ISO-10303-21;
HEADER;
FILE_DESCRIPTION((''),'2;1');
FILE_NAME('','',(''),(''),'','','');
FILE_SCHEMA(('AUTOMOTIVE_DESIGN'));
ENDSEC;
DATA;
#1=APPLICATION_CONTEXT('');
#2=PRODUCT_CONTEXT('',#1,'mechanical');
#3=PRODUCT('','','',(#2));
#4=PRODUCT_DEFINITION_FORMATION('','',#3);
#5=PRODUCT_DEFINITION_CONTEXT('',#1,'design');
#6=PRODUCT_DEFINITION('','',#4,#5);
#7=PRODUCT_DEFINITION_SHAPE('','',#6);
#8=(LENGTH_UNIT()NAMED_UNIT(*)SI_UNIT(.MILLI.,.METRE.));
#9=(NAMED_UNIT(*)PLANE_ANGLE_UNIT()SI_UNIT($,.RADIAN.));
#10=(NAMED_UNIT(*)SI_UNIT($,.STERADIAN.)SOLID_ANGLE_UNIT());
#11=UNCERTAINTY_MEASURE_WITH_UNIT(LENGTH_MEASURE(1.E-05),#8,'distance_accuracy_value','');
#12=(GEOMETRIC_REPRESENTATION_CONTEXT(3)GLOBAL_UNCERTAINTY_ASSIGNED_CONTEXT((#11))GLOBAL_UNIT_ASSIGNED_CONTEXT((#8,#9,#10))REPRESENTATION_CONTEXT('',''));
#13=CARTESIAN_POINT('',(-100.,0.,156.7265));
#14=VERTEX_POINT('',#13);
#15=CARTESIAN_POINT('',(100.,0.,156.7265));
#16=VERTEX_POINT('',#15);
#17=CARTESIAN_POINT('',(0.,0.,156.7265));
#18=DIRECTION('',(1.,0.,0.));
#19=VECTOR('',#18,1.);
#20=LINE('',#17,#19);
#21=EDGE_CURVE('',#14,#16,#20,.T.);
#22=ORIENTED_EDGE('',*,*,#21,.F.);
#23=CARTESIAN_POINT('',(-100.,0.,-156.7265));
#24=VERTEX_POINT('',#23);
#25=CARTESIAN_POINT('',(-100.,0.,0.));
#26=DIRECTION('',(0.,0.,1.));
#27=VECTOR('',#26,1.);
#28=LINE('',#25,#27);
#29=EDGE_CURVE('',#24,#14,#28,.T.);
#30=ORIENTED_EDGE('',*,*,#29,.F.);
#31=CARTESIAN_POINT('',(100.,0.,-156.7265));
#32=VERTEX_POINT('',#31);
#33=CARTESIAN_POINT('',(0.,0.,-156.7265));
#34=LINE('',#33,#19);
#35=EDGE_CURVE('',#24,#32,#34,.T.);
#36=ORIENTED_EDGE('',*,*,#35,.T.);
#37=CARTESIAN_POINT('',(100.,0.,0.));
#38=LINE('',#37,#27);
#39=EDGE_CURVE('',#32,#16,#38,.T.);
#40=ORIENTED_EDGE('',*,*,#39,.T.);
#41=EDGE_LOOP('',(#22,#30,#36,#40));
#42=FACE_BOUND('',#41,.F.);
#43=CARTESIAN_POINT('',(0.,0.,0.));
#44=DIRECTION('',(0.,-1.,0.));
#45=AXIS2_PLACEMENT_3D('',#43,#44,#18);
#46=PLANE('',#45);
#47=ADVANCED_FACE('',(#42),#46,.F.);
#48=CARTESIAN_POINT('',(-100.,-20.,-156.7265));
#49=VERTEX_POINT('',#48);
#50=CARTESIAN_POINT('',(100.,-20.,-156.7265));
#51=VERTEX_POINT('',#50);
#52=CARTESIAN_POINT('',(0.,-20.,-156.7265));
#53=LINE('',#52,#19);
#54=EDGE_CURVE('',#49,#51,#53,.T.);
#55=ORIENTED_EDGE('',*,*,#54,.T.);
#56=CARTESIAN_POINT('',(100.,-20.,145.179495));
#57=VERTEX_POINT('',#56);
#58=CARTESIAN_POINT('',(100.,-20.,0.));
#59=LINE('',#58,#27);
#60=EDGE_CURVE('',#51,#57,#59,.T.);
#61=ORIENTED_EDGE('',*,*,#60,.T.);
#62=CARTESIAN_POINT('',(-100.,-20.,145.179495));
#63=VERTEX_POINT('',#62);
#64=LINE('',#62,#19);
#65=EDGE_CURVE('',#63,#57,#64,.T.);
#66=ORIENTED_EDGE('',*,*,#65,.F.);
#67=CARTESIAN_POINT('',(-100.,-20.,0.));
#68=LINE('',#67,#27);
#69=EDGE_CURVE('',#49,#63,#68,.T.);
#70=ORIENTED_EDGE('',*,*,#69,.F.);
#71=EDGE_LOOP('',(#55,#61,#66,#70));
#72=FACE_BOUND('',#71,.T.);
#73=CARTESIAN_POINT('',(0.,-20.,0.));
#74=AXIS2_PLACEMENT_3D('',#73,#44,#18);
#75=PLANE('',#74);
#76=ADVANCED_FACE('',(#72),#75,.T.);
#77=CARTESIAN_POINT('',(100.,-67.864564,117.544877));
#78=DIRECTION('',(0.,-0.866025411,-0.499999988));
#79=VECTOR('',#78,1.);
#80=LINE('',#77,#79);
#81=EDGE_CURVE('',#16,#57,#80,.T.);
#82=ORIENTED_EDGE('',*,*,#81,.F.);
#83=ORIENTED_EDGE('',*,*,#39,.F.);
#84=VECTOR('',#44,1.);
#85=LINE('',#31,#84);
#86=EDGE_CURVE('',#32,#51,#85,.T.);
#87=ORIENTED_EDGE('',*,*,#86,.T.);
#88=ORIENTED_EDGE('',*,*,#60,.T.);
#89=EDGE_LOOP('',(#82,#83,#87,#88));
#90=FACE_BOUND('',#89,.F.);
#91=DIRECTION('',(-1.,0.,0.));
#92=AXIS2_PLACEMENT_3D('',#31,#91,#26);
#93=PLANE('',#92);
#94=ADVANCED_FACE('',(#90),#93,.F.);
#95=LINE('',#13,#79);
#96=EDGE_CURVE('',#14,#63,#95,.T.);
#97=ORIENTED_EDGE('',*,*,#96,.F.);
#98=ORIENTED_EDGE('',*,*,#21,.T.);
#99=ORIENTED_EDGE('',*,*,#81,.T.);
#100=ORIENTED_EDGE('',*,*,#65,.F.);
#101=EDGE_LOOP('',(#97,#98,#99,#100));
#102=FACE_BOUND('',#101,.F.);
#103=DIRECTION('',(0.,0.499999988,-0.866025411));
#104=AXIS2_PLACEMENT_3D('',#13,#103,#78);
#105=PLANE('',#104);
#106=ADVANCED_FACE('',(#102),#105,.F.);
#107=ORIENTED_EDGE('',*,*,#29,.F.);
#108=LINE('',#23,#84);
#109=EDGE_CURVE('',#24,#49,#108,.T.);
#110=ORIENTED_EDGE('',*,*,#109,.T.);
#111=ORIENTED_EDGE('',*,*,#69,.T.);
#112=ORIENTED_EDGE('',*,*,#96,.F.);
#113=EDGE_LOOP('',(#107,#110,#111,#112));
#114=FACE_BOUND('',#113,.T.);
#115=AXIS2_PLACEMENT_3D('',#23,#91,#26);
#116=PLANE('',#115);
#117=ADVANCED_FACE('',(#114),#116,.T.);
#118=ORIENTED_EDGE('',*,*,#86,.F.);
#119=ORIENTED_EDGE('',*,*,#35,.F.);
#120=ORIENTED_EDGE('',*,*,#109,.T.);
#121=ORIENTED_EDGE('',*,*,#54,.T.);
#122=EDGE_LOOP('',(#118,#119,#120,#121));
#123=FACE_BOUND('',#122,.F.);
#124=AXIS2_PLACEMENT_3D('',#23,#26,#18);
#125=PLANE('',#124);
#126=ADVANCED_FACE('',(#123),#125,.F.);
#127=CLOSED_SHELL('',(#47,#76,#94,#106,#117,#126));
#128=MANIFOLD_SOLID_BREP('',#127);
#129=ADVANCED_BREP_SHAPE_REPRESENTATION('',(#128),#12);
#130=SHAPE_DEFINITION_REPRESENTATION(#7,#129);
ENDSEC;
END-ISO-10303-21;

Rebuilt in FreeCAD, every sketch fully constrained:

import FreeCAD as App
import Part
import Sketcher

V = App.Vector
Q = App.Units.Quantity


def add_polygon(sketch, points):
    """Adds a closed chain of lines whose ends are joined by coincident constraints."""
    first, n = sketch.GeometryCount, len(points)
    for a, b in zip(points, points[1:] + points[:1]):
        sketch.addGeometry(Part.LineSegment(App.Vector(*a, 0), App.Vector(*b, 0)), False)
    for i in range(n):
        sketch.addConstraint(Sketcher.Constraint("Coincident", first + i, 2, first + (i + 1) % n, 1))

doc = App.newDocument("Part")
body = doc.addObject("PartDesign::Body", "Body")

# Sketch on XZ plane
sketch1 = body.newObject("Sketcher::SketchObject", "Sketch")
sketch1.AttachmentSupport = (doc.getObject("XZ_Plane"), [""])
sketch1.MapMode = "FlatFace"
add_polygon(sketch1, [(-100, 157), (-100, -157), (100, -157), (100, 157)])  # lines 0-3
sketch1.addConstraint([
    Sketcher.Constraint("Vertical", 0),
    Sketcher.Constraint("Horizontal", 1),
    Sketcher.Constraint("Vertical", 2),
    Sketcher.Constraint("Horizontal", 3),
    Sketcher.Constraint("Symmetric", 0, 2, 2, 2, -1, 1),
    Sketcher.Constraint("DistanceX", 1, 1, 1, 2, Q("200 mm")),
    Sketcher.Constraint("DistanceY", 0, 2, 0, 1, Q("313.453 mm")),
])
pad1 = body.newObject("PartDesign::Pad", "Pad")
pad1.Profile = sketch1
pad1.Length = 20

# Sketch on YZ plane
sketch2 = body.newObject("Sketcher::SketchObject", "Sketch001")
sketch2.AttachmentSupport = (doc.getObject("YZ_Plane"), [""])
sketch2.MapMode = "FlatFace"
sketch2.AttachmentOffset = App.Placement(V(0, 0, -100), App.Rotation())
add_polygon(sketch2, [(-20, 157), (0, 157), (-20, 145)])  # lines 0-2
sketch2.addConstraint([
    Sketcher.Constraint("Horizontal", 0),
    Sketcher.Constraint("Vertical", 2),
    Sketcher.Constraint("PointOnObject", 0, 2, -2),
    Sketcher.Constraint("DistanceX", 0, 1, 0, 2, Q("20 mm")),
    Sketcher.Constraint("Angle", 1, Q("-150.000001 deg")),
    Sketcher.Constraint("DistanceY", -1, 1, 0, 2, Q("156.7265 mm")),
])
pocket1 = body.newObject("PartDesign::Pocket", "Pocket")
pocket1.Profile = sketch2
pocket1.Type = "ThroughAll"
pocket1.Reversed = True

doc.recompute()
